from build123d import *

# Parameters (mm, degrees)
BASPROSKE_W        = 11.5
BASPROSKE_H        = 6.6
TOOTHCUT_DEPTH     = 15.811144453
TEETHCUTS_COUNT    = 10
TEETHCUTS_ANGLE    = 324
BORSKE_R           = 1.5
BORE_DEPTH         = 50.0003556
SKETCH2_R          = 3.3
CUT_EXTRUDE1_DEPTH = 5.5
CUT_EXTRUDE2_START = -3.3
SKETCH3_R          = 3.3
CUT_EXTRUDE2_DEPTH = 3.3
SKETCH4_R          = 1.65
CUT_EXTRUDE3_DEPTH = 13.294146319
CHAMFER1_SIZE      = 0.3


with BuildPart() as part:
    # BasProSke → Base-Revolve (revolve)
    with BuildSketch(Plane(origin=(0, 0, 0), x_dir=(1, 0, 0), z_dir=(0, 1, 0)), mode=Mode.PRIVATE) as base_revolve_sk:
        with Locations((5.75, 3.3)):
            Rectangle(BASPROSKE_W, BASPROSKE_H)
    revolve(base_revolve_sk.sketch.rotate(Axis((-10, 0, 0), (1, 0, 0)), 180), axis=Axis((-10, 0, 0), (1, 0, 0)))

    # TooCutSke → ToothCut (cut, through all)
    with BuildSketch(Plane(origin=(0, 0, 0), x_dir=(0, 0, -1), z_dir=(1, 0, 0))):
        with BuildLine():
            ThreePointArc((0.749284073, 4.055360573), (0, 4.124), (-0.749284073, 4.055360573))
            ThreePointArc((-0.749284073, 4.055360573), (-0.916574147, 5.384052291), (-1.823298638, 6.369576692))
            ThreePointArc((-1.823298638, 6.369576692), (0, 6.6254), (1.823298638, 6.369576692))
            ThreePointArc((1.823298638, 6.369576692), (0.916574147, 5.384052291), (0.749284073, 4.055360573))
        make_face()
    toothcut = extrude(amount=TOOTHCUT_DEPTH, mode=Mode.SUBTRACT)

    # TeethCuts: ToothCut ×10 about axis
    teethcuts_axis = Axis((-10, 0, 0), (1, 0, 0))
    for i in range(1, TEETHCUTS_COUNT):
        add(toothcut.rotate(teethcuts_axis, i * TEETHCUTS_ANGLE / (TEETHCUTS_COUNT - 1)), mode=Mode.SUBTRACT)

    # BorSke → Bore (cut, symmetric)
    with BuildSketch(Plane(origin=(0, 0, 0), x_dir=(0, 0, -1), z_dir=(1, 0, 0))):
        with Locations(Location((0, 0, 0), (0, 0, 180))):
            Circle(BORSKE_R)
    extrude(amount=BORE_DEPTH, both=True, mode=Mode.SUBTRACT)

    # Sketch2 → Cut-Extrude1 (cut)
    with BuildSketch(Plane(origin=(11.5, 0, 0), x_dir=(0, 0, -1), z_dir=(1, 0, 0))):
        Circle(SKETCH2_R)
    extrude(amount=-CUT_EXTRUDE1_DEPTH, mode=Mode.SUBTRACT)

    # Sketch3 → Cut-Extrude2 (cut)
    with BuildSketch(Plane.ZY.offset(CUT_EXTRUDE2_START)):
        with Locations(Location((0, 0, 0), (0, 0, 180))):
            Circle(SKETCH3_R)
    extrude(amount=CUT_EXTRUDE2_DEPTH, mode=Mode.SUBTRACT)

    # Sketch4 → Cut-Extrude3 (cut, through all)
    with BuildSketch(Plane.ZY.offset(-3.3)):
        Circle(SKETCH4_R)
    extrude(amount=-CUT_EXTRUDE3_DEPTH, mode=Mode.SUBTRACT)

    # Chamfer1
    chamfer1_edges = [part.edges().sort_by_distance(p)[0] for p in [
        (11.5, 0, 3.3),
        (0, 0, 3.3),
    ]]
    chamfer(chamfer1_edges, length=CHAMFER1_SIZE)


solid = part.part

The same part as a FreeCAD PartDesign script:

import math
import FreeCAD as App
import Part
import Sketcher


def edges_at(feature, points):
    """Names of the edges that pass closest to the given points."""
    edges = feature.Shape.Edges
    near = lambda p: min(range(len(edges)), key=lambda i: edges[i].distToShape(Part.Vertex(*p))[0])
    return sorted({f"Edge{near(p) + 1}" for p in points})

doc = App.newDocument("Part")
body = doc.addObject("PartDesign::Body", "Body")

# Sketch on XZ plane
sketch1 = body.newObject("Sketcher::SketchObject", "Sketch")
sketch1.AttachmentSupport = (doc.getObject("XZ_Plane"), [""])
sketch1.MapMode = "FlatFace"
sketch1.addGeometry([
    Part.LineSegment(App.Vector(0, -7, 0), App.Vector(0, 0, 0)),
    Part.LineSegment(App.Vector(0, 0, 0), App.Vector(12, 0, 0)),
    Part.LineSegment(App.Vector(12, 0, 0), App.Vector(12, -7, 0)),
    Part.LineSegment(App.Vector(12, -7, 0), App.Vector(0, -7, 0)),
], False)
sketch1.addConstraint([
    Sketcher.Constraint("Coincident", 0, 2, 1, 1),
    Sketcher.Constraint("Coincident", 1, 2, 2, 1),
    Sketcher.Constraint("Coincident", 2, 2, 3, 1),
    Sketcher.Constraint("Coincident", 3, 2, 0, 1),
    Sketcher.Constraint("Vertical", 0),
    Sketcher.Constraint("Horizontal", 1),
    Sketcher.Constraint("Vertical", 2),
    Sketcher.Constraint("Horizontal", 3),
    Sketcher.Constraint("Coincident", 0, 2, -1, 1),
    Sketcher.Constraint("DistanceX", 1, 1, 1, 2, 11.5),
    Sketcher.Constraint("DistanceY", 0, 1, 0, 2, 6.6),
])
revolution = body.newObject("PartDesign::Revolution", "Revolution")
revolution.Profile = sketch1
revolution.ReferenceAxis = (sketch1, ["H_Axis"])
revolution.Angle = 360

# Sketch on YZ plane
sketch2 = body.newObject("Sketcher::SketchObject", "Sketch001")
sketch2.AttachmentSupport = (doc.getObject("YZ_Plane"), [""])
sketch2.MapMode = "FlatFace"
sketch2.addGeometry([
    Part.ArcOfCircle(Part.Circle(App.Vector(0, 0, 0), App.Vector(0, 0, 1), 4.1), math.radians(-10), math.radians(10)),
    Part.ArcOfCircle(Part.Circle(App.Vector(4.5, -2.9, 0), App.Vector(0, 0, 1), 2.2), math.radians(30), math.radians(101)),
    Part.ArcOfCircle(Part.Circle(App.Vector(0, 0, 0), App.Vector(0, 0, 1), 6.6), math.radians(-16), math.radians(16)),
    Part.ArcOfCircle(Part.Circle(App.Vector(4.5, 2.9, 0), App.Vector(0, 0, 1), 2.2), math.radians(-101), math.radians(-30)),
], False)
sketch2.addConstraint([
    Sketcher.Constraint("Coincident", 0, 1, 1, 2),
    Sketcher.Constraint("Coincident", 1, 1, 2, 1),
    Sketcher.Constraint("Coincident", 2, 2, 3, 2),
    Sketcher.Constraint("Coincident", 3, 1, 0, 2),
    Sketcher.Constraint("Coincident", 0, 3, -1, 1),
    Sketcher.Constraint("Coincident", 2, 3, -1, 1),
    Sketcher.Constraint("Equal", 1, 3),
    Sketcher.Constraint("Symmetric", 1, 3, 3, 3, -1),
    Sketcher.Constraint("Radius", 1, 2.2),
    Sketcher.Constraint("Radius", 0, 4.124),
    Sketcher.Constraint("Radius", 2, 6.6254),
    Sketcher.Constraint("DistanceY", 1, 1, -1, 1, 1.823299),
    Sketcher.Constraint("DistanceX", -1, 1, 1, 3, 4.457922),
])
pocket1 = body.newObject("PartDesign::Pocket", "Pocket")
pocket1.Profile = sketch2
pocket1.Type = "ThroughAll"
pocket1.Reversed = True
doc.recompute()

polarpattern = body.newObject("PartDesign::PolarPattern", "PolarPattern")
polarpattern.Originals = [pocket1]
polarpattern.Axis = (doc.getObject("X_Axis"), [""])
polarpattern.Angle = 360
polarpattern.Occurrences = 10
body.Tip = polarpattern

# Sketch on YZ plane
sketch3 = body.newObject("Sketcher::SketchObject", "Sketch002")
sketch3.AttachmentSupport = (doc.getObject("YZ_Plane"), [""])
sketch3.MapMode = "FlatFace"
sketch3.addGeometry(Part.Circle(App.Vector(0, 0, 0), App.Vector(0, 0, 1), 1.5), False)
sketch3.addConstraint([
    Sketcher.Constraint("Coincident", 0, 3, -1, 1),
    Sketcher.Constraint("Diameter", 0, 3.0),
])
pocket2 = body.newObject("PartDesign::Pocket", "Pocket001")
pocket2.Profile = sketch3
pocket2.Length = 100.000711
pocket2.Midplane = True

# Sketch on YZ plane
sketch4 = body.newObject("Sketcher::SketchObject", "Sketch003")
sketch4.AttachmentSupport = (doc.getObject("YZ_Plane"), [""])
sketch4.MapMode = "FlatFace"
sketch4.AttachmentOffset = App.Placement(App.Vector(0, 0, 11.5), App.Rotation())
sketch4.addGeometry(Part.Circle(App.Vector(0, 0, 0), App.Vector(0, 0, 1), 3.3), False)
sketch4.addConstraint([
    Sketcher.Constraint("Coincident", 0, 3, -1, 1),
    Sketcher.Constraint("Diameter", 0, 6.6),
])
pocket3 = body.newObject("PartDesign::Pocket", "Pocket002")
pocket3.Profile = sketch4
pocket3.Length = 5.5

# Sketch on YZ plane
sketch5 = body.newObject("Sketcher::SketchObject", "Sketch004")
sketch5.AttachmentSupport = (doc.getObject("YZ_Plane"), [""])
sketch5.MapMode = "FlatFace"
sketch5.AttachmentOffset = App.Placement(App.Vector(0, 0, 3.3), App.Rotation())
sketch5.addGeometry(Part.Circle(App.Vector(0, 0, 0), App.Vector(0, 0, 1), 3.3), False)
sketch5.addConstraint([
    Sketcher.Constraint("Coincident", 0, 3, -1, 1),
    Sketcher.Constraint("Diameter", 0, 6.6),
])
pocket4 = body.newObject("PartDesign::Pocket", "Pocket003")
pocket4.Profile = sketch5
pocket4.Length = 3.3

# Sketch on YZ plane
sketch6 = body.newObject("Sketcher::SketchObject", "Sketch005")
sketch6.AttachmentSupport = (doc.getObject("YZ_Plane"), [""])
sketch6.MapMode = "FlatFace"
sketch6.AttachmentOffset = App.Placement(App.Vector(0, 0, 3.3), App.Rotation())
sketch6.addGeometry(Part.Circle(App.Vector(0, 0, 0), App.Vector(0, 0, 1), 1.6), False)
sketch6.addConstraint([
    Sketcher.Constraint("Coincident", 0, 3, -1, 1),
    Sketcher.Constraint("Diameter", 0, 3.3),
])
pocket5 = body.newObject("PartDesign::Pocket", "Pocket004")
pocket5.Profile = sketch6
pocket5.Type = "ThroughAll"
pocket5.Reversed = True
doc.recompute()

chamfer = body.newObject("PartDesign::Chamfer", "Chamfer")
chamfer.Base = (pocket5, edges_at(pocket5, [(11.5, 0, 3.3), (0, 0, 3.3)]))
chamfer.Size = 0.3

doc.recompute()
